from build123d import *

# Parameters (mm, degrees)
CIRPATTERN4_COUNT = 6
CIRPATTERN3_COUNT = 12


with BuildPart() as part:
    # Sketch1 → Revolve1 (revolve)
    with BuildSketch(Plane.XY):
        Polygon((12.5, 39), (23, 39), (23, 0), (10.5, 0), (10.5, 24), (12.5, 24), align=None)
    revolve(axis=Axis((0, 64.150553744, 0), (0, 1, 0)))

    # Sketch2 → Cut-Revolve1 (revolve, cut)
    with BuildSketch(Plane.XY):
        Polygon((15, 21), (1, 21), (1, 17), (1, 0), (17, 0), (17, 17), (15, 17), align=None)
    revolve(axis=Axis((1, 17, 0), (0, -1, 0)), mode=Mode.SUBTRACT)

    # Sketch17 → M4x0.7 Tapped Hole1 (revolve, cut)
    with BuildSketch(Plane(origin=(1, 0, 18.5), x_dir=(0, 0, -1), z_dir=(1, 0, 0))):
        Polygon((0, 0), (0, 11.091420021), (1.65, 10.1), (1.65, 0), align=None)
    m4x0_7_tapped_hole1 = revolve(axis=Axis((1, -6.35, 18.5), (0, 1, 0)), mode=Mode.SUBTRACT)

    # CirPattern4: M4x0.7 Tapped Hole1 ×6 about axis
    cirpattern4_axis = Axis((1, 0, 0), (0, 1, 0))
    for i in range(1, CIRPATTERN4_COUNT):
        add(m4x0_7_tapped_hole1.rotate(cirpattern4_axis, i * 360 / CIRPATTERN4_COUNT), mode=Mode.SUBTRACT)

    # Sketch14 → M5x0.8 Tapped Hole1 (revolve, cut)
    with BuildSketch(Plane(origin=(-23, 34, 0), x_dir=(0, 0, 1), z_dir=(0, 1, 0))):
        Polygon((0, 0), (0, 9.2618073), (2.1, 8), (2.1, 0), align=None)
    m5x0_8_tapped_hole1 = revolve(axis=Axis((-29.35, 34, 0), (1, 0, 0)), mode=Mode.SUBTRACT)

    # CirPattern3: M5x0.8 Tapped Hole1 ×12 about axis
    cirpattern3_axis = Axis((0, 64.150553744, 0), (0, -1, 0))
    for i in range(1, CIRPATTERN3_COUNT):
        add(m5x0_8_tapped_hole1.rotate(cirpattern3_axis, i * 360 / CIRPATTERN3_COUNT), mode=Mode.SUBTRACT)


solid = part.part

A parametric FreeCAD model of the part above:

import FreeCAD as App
import Part
import Sketcher
Q = App.Units.Quantity

doc = App.newDocument("Part")
body = doc.addObject("PartDesign::Body", "Body")

# Sketch on XY plane
sketch1 = body.newObject("Sketcher::SketchObject", "Sketch")
sketch1.AttachmentSupport = (doc.getObject("XY_Plane"), [""])
sketch1.MapMode = "FlatFace"
sketch1.addGeometry([
    Part.LineSegment(App.Vector(23, 39, 0), App.Vector(12.5, 39, 0)),  # 0
    Part.LineSegment(App.Vector(12.5, 39, 0), App.Vector(12.5, 24, 0)),  # 1
    Part.LineSegment(App.Vector(12.5, 24, 0), App.Vector(10.5, 24, 0)),  # 2
    Part.LineSegment(App.Vector(10.5, 24, 0), App.Vector(10.5, 0, 0)),  # 3
    Part.LineSegment(App.Vector(10.5, 0, 0), App.Vector(23, 0, 0)),  # 4
    Part.LineSegment(App.Vector(23, 0, 0), App.Vector(23, 39, 0)),  # 5
], False)
sketch1.addConstraint([
    Sketcher.Constraint("Coincident", 0, 2, 1, 1),
    Sketcher.Constraint("Coincident", 1, 2, 2, 1),
    Sketcher.Constraint("Coincident", 2, 2, 3, 1),
    Sketcher.Constraint("Coincident", 3, 2, 4, 1),
    Sketcher.Constraint("Coincident", 4, 2, 5, 1),
    Sketcher.Constraint("Coincident", 5, 2, 0, 1),
    Sketcher.Constraint("Horizontal", 0),
    Sketcher.Constraint("Vertical", 1),
    Sketcher.Constraint("Horizontal", 2),
    Sketcher.Constraint("Vertical", 3),
    Sketcher.Constraint("Horizontal", 4),
    Sketcher.Constraint("Vertical", 5),
    Sketcher.Constraint("PointOnObject", 3, 2, -1),
    Sketcher.Constraint("DistanceX", 2, 2, 2, 1, Q("2 mm")),
    Sketcher.Constraint("DistanceY", 1, 2, 1, 1, Q("15 mm")),
    Sketcher.Constraint("DistanceY", 3, 2, 3, 1, Q("24 mm")),
    Sketcher.Constraint("DistanceX", 0, 2, 0, 1, Q("10.5 mm")),
    Sketcher.Constraint("DistanceX", -1, 1, 4, 2, Q("23 mm")),
])
revolution = body.newObject("PartDesign::Revolution", "Revolution")
revolution.Profile = sketch1
revolution.ReferenceAxis = (sketch1, ["V_Axis"])
revolution.Angle = 360

# Sketch on XY plane
sketch2 = body.newObject("Sketcher::SketchObject", "Sketch001")
sketch2.AttachmentSupport = (doc.getObject("XY_Plane"), [""])
sketch2.MapMode = "FlatFace"
sketch2.addGeometry([
    Part.LineSegment(App.Vector(15, 21, 0), App.Vector(1, 21, 0)),  # 0
    Part.LineSegment(App.Vector(1, 21, 0), App.Vector(1, 0, 0)),  # 1
    Part.LineSegment(App.Vector(1, 0, 0), App.Vector(17, 0, 0)),  # 2
    Part.LineSegment(App.Vector(17, 0, 0), App.Vector(17, 17, 0)),  # 3
    Part.LineSegment(App.Vector(17, 17, 0), App.Vector(15, 17, 0)),  # 4
    Part.LineSegment(App.Vector(15, 17, 0), App.Vector(15, 21, 0)),  # 5
], False)
sketch2.addGeometry(Part.LineSegment(App.Vector(1, 21, 0), App.Vector(1, 0, 0)), True)  # axis
sketch2.addConstraint([
    Sketcher.Constraint("Coincident", 0, 2, 1, 1),
    Sketcher.Constraint("Coincident", 1, 2, 2, 1),
    Sketcher.Constraint("Coincident", 2, 2, 3, 1),
    Sketcher.Constraint("Coincident", 3, 2, 4, 1),
    Sketcher.Constraint("Coincident", 4, 2, 5, 1),
    Sketcher.Constraint("Coincident", 5, 2, 0, 1),
    Sketcher.Constraint("Horizontal", 0),
    Sketcher.Constraint("Vertical", 1),
    Sketcher.Constraint("Horizontal", 2),
    Sketcher.Constraint("Vertical", 3),
    Sketcher.Constraint("Horizontal", 4),
    Sketcher.Constraint("Vertical", 5),
    Sketcher.Constraint("Vertical", 6),
    Sketcher.Constraint("Coincident", 6, 1, 0, 2),
    Sketcher.Constraint("PointOnObject", 1, 2, -1),
    Sketcher.Constraint("PointOnObject", 6, 2, -1),
    Sketcher.Constraint("DistanceX", 0, 2, 0, 1, Q("14 mm")),
    Sketcher.Constraint("DistanceX", 2, 1, 2, 2, Q("16 mm")),
    Sketcher.Constraint("DistanceY", 1, 2, 1, 1, Q("21 mm")),
    Sketcher.Constraint("DistanceY", 3, 1, 3, 2, Q("17 mm")),
    Sketcher.Constraint("DistanceX", -1, 1, 0, 2, Q("1 mm")),
])
groove = body.newObject("PartDesign::Groove", "Groove")
groove.Profile = sketch2
groove.ReferenceAxis = (sketch2, ["Axis0"])
groove.Angle = 360

# Sketch on YZ plane
sketch3 = body.newObject("Sketcher::SketchObject", "Sketch002")
sketch3.AttachmentSupport = (doc.getObject("YZ_Plane"), [""])
sketch3.MapMode = "FlatFace"
sketch3.AttachmentOffset = App.Placement(App.Vector(0, 0, 1), App.Rotation())
sketch3.addGeometry([
    Part.LineSegment(App.Vector(11.1, 18.5, 0), App.Vector(0, 18.5, 0)),
    Part.LineSegment(App.Vector(0, 18.5, 0), App.Vector(0, 16.9, 0)),
    Part.LineSegment(App.Vector(0, 16.9, 0), App.Vector(10.1, 16.9, 0)),
    Part.LineSegment(App.Vector(10.1, 16.9, 0), App.Vector(11.1, 18.5, 0)),
], False)
sketch3.addGeometry(Part.LineSegment(App.Vector(0, 18.5, 0), App.Vector(11.1, 18.5, 0)), True)  # axis
sketch3.addConstraint([
    Sketcher.Constraint("Coincident", 0, 2, 1, 1),
    Sketcher.Constraint("Coincident", 1, 2, 2, 1),
    Sketcher.Constraint("Coincident", 2, 2, 3, 1),
    Sketcher.Constraint("Coincident", 3, 2, 0, 1),
    Sketcher.Constraint("Horizontal", 0),
    Sketcher.Constraint("Vertical", 1),
    Sketcher.Constraint("Horizontal", 2),
    Sketcher.Constraint("Horizontal", 4),
    Sketcher.Constraint("Coincident", 4, 1, 0, 2),
    Sketcher.Constraint("PointOnObject", 0, 2, -2),
    Sketcher.Constraint("Equal", 0, 4),
    Sketcher.Constraint("Angle", 3, Q("59 deg")),
    Sketcher.Constraint("DistanceX", 2, 1, 2, 2, Q("10.1 mm")),
    Sketcher.Constraint("DistanceY", 1, 2, 1, 1, Q("1.65 mm")),
    Sketcher.Constraint("DistanceY", -1, 1, 0, 2, Q("18.5 mm")),
])
groove2 = body.newObject("PartDesign::Groove", "Groove001")
groove2.Profile = sketch3
groove2.ReferenceAxis = (sketch3, ["Axis0"])
groove2.Angle = 360
doc.recompute()

datumline = body.newObject("PartDesign::Line", "DatumLine")
datumline.Placement = App.Placement(App.Vector(1, 0, 0), App.Rotation(App.Vector(0, 0, 1), App.Vector(0, 1, 0)))
polarpattern = body.newObject("PartDesign::PolarPattern", "PolarPattern")
polarpattern.Originals = [groove2]
polarpattern.Axis = (datumline, [""])
polarpattern.Angle = 360
polarpattern.Occurrences = 6
body.Tip = polarpattern

# Sketch on XZ plane
sketch4 = body.newObject("Sketcher::SketchObject", "Sketch003")
sketch4.AttachmentSupport = (doc.getObject("XZ_Plane"), [""])
sketch4.MapMode = "FlatFace"
sketch4.AttachmentOffset = App.Placement(App.Vector(0, 0, -34), App.Rotation())
sketch4.addGeometry([
    Part.LineSegment(App.Vector(-13.7, 0, 0), App.Vector(-23, 0, 0)),
    Part.LineSegment(App.Vector(-23, 0, 0), App.Vector(-23, 2.1, 0)),
    Part.LineSegment(App.Vector(-23, 2.1, 0), App.Vector(-15, 2.1, 0)),
    Part.LineSegment(App.Vector(-15, 2.1, 0), App.Vector(-13.7, 0, 0)),
], False)
sketch4.addConstraint([
    Sketcher.Constraint("Coincident", 0, 2, 1, 1),
    Sketcher.Constraint("Coincident", 1, 2, 2, 1),
    Sketcher.Constraint("Coincident", 2, 2, 3, 1),
    Sketcher.Constraint("Coincident", 3, 2, 0, 1),
    Sketcher.Constraint("Horizontal", 0),
    Sketcher.Constraint("Vertical", 1),
    Sketcher.Constraint("Horizontal", 2),
    Sketcher.Constraint("PointOnObject", 0, 2, -1),
    Sketcher.Constraint("DistanceX", 2, 1, 2, 2, Q("8 mm")),
    Sketcher.Constraint("Angle", 3, Q("-59 deg")),
    Sketcher.Constraint("DistanceY", 1, 1, 1, 2, Q("2.1 mm")),
    Sketcher.Constraint("DistanceX", 0, 2, -1, 1, Q("23 mm")),
])
groove3 = body.newObject("PartDesign::Groove", "Groove002")
groove3.Profile = sketch4
groove3.ReferenceAxis = (sketch4, ["H_Axis"])
groove3.Angle = 360
doc.recompute()

polarpattern2 = body.newObject("PartDesign::PolarPattern", "PolarPattern001")
polarpattern2.Originals = [groove3]
polarpattern2.Axis = (doc.getObject("Y_Axis"), [""])
polarpattern2.Angle = 360
polarpattern2.Occurrences = 12
body.Tip = polarpattern2

doc.recompute()
